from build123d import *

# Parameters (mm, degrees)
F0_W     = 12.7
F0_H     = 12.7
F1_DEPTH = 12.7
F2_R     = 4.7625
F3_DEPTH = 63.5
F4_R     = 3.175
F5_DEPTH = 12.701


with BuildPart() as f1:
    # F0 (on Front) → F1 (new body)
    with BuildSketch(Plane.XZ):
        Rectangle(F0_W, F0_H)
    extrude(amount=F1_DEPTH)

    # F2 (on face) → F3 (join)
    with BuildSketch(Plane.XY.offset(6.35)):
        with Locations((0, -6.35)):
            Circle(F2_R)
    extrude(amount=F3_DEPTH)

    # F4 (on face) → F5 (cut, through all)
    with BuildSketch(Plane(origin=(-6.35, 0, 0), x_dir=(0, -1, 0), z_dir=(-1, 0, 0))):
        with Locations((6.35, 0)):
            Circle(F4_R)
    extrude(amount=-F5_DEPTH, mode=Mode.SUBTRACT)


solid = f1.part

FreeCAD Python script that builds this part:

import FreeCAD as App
import Part
import Sketcher

V = App.Vector
Q = App.Units.Quantity


def add_polygon(sketch, points):
    """Adds a closed chain of lines whose ends are joined by coincident constraints."""
    first, n = sketch.GeometryCount, len(points)
    for a, b in zip(points, points[1:] + points[:1]):
        sketch.addGeometry(Part.LineSegment(App.Vector(*a, 0), App.Vector(*b, 0)), False)
    for i in range(n):
        sketch.addConstraint(Sketcher.Constraint("Coincident", first + i, 2, first + (i + 1) % n, 1))

doc = App.newDocument("Part")
body = doc.addObject("PartDesign::Body", "Body")

# Sketch on XZ plane
sketch1 = doc.addObject("Sketcher::SketchObject", "Sketch")
body.addObject(sketch1)
sketch1.AttachmentSupport = (doc.XZ_Plane, [""])
sketch1.MapMode = "FlatFace"
add_polygon(sketch1, [(-6, 6), (-6, -6), (6, -6), (6, 6)])  # lines 0-3
sketch1.addConstraint(Sketcher.Constraint("Vertical", 0))
sketch1.addConstraint(Sketcher.Constraint("Horizontal", 1))
sketch1.addConstraint(Sketcher.Constraint("Vertical", 2))
sketch1.addConstraint(Sketcher.Constraint("Horizontal", 3))
sketch1.addConstraint(Sketcher.Constraint("Symmetric", 0, 2, 2, 2, -1, 1))
sketch1.addConstraint(Sketcher.Constraint("Equal", 3, 0))
sketch1.addConstraint(Sketcher.Constraint("DistanceX", 1, 1, 1, 2, Q("0.5 in")))
pad1 = doc.addObject("PartDesign::Pad", "Pad")
body.addObject(pad1)
pad1.Profile = sketch1
pad1.Length = Q("0.5 in")

# Sketch on XY plane
sketch2 = doc.addObject("Sketcher::SketchObject", "Sketch001")
body.addObject(sketch2)
sketch2.AttachmentSupport = (doc.XY_Plane, [""])
sketch2.MapMode = "FlatFace"
sketch2.AttachmentOffset = App.Placement(V(0, 0, 0.25 * 25.4), App.Rotation())
sketch2.addGeometry(Part.Circle(V(0, -6.3, 0), V(0, 0, 1), 4.8), False)
sketch2.addConstraint(Sketcher.Constraint("PointOnObject", 0, 3, -2))
sketch2.addConstraint(Sketcher.Constraint("Diameter", 0, Q("0.375 in")))
sketch2.addConstraint(Sketcher.Constraint("DistanceY", 0, 3, -1, 1, Q("0.25 in")))
pad2 = doc.addObject("PartDesign::Pad", "Pad001")
body.addObject(pad2)
pad2.Profile = sketch2
pad2.Length = Q("2.5 in")

# Sketch on YZ plane
sketch3 = doc.addObject("Sketcher::SketchObject", "Sketch002")
body.addObject(sketch3)
sketch3.AttachmentSupport = (doc.YZ_Plane, [""])
sketch3.MapMode = "FlatFace"
sketch3.AttachmentOffset = App.Placement(V(0, 0, -0.25 * 25.4), App.Rotation())
sketch3.addGeometry(Part.Circle(V(-6.3, 0, 0), V(0, 0, 1), 3.2), False)
sketch3.addConstraint(Sketcher.Constraint("PointOnObject", 0, 3, -1))
sketch3.addConstraint(Sketcher.Constraint("Diameter", 0, Q("0.25 in")))
sketch3.addConstraint(Sketcher.Constraint("DistanceX", 0, 3, -1, 1, Q("0.25 in")))
pocket1 = doc.addObject("PartDesign::Pocket", "Pocket")
body.addObject(pocket1)
pocket1.Profile = sketch3
pocket1.Type = "ThroughAll"
pocket1.Reversed = True

doc.recompute()
